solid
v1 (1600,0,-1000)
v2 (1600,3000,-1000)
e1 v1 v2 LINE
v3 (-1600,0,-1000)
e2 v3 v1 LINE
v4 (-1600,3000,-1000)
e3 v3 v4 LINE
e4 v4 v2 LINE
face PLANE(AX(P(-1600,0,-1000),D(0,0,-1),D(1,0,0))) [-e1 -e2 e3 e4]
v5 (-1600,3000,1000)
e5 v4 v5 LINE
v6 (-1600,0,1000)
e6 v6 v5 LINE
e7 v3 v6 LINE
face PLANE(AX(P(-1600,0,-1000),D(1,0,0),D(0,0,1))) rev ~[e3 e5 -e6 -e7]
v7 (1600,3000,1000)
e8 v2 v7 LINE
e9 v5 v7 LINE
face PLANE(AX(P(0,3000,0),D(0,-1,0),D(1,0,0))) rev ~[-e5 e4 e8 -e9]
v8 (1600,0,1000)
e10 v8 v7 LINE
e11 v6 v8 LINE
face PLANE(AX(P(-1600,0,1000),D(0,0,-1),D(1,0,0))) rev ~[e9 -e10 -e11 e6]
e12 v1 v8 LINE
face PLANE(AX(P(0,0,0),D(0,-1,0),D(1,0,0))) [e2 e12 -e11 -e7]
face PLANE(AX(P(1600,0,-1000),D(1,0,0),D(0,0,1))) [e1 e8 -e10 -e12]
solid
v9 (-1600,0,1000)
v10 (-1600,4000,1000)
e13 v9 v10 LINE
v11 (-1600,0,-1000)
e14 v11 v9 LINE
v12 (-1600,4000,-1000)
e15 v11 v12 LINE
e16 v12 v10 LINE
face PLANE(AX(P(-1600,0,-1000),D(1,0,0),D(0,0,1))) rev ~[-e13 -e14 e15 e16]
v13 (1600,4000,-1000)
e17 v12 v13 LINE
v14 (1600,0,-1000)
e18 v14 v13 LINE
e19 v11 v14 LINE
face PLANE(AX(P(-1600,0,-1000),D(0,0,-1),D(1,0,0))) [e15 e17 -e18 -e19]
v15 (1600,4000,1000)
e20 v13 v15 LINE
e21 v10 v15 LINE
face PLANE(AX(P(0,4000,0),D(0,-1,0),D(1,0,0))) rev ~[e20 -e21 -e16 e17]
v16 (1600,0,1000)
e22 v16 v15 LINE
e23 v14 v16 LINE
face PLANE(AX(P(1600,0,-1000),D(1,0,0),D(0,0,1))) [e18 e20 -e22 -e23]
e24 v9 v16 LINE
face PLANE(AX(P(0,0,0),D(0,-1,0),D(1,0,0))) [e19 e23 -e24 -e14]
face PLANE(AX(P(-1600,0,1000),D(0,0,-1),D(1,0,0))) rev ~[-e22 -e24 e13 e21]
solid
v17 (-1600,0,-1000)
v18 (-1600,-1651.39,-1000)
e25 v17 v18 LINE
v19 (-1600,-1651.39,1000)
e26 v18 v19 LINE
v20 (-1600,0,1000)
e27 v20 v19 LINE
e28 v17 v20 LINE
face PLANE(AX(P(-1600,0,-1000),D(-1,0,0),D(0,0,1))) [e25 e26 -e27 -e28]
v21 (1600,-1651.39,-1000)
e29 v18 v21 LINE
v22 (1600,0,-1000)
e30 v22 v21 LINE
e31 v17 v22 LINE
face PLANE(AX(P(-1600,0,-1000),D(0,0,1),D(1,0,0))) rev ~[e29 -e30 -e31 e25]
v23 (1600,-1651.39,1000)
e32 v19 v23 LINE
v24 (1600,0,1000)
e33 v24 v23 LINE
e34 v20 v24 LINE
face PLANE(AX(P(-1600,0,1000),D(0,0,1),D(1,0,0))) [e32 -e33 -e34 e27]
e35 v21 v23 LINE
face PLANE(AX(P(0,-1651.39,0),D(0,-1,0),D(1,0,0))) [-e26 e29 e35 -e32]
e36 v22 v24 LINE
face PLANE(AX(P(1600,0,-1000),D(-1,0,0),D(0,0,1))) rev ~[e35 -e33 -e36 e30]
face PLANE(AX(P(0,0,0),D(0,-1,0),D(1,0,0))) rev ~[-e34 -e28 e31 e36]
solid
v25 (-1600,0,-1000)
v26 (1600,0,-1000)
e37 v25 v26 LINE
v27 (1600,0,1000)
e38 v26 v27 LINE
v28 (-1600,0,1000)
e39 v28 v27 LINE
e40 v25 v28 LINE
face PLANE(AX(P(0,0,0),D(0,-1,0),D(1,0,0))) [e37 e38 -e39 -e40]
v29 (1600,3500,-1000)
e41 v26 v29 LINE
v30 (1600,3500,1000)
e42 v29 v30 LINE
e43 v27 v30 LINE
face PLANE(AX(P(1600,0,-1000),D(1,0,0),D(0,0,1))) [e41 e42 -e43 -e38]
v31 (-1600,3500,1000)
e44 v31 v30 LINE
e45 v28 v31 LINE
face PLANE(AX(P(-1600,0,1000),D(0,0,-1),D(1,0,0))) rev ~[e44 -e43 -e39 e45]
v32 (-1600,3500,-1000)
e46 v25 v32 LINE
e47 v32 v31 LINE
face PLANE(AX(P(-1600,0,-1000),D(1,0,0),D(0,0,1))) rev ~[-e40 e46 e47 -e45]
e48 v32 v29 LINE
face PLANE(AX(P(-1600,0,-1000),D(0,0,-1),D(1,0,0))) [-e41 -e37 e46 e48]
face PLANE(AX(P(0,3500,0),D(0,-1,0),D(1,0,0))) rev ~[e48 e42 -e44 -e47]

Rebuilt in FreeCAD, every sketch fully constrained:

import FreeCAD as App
import Part
import Sketcher
from FreeCAD import Vector


def add_polygon(sketch, points):
    """Adds a closed chain of lines whose ends are joined by coincident constraints."""
    first, n = sketch.GeometryCount, len(points)
    for a, b in zip(points, points[1:] + points[:1]):
        sketch.addGeometry(Part.LineSegment(App.Vector(*a, 0), App.Vector(*b, 0)), False)
    for i in range(n):
        sketch.addConstraint(Sketcher.Constraint("Coincident", first + i, 2, first + (i + 1) % n, 1))

doc = App.newDocument("Part")
params = doc.addObject("Spreadsheet::Sheet", "Params")
for row, (alias, value) in enumerate([
    ("sketch1_width", "3200 mm"),
    ("sketch1_height", "2000 mm"),
    ("pad1_length", "1651.39 mm"),
    ("sketch2_width", "3200 mm"),
    ("sketch2_height", "2000 mm"),
    ("pad2_length", "3000 mm"),
    ("sketch3_width", "3200 mm"),
    ("sketch3_height", "2000 mm"),
    ("pad3_length", "3500 mm"),
    ("sketch4_width", "3200 mm"),
    ("sketch4_height", "2000 mm"),
    ("pad4_length", "4000 mm"),
], start=1):
    params.set(f"A{row}", alias)
    params.set(f"B{row}", "=" + value)
    params.setAlias(f"B{row}", alias)

body = doc.addObject("PartDesign::Body", "Body")

sketch1 = body.newObject("Sketcher::SketchObject", "Sketch")
sketch1.AttachmentSupport = (doc.getObject("XZ_Plane"), [""])
sketch1.MapMode = "FlatFace"
add_polygon(sketch1, [(-1600, 1000), (-1600, -1000), (1600, -1000), (1600, 1000)])
sketch1.addConstraint(Sketcher.Constraint("Vertical", 0))
sketch1.addConstraint(Sketcher.Constraint("Horizontal", 1))
sketch1.addConstraint(Sketcher.Constraint("Vertical", 2))
sketch1.addConstraint(Sketcher.Constraint("Horizontal", 3))
sketch1.addConstraint(Sketcher.Constraint("Symmetric", 0, 2, 2, 2, -1, 1))
sketch1.addConstraint(Sketcher.Constraint("DistanceX", 1, 1, 1, 2, 3200.0))
sketch1.addConstraint(Sketcher.Constraint("DistanceY", 0, 2, 0, 1, 2000.0))
sketch1.setExpression("Constraints[9]", "Params.sketch1_width")
sketch1.setExpression("Constraints[10]", "Params.sketch1_height")
pad1 = body.newObject("PartDesign::Pad", "Pad")
pad1.Profile = sketch1
pad1.setExpression("Length", "Params.pad1_length")
body2 = doc.addObject("PartDesign::Body", "Body001")

sketch2 = body2.newObject("Sketcher::SketchObject", "Sketch001")
sketch2.AttachmentSupport = (doc.getObject("XZ_Plane001"), [""])
sketch2.MapMode = "FlatFace"
add_polygon(sketch2, [(-1600, 1000), (-1600, -1000), (1600, -1000), (1600, 1000)])
sketch2.addConstraint(Sketcher.Constraint("Vertical", 0))
sketch2.addConstraint(Sketcher.Constraint("Horizontal", 1))
sketch2.addConstraint(Sketcher.Constraint("Vertical", 2))
sketch2.addConstraint(Sketcher.Constraint("Horizontal", 3))
sketch2.addConstraint(Sketcher.Constraint("Symmetric", 0, 2, 2, 2, -1, 1))
sketch2.addConstraint(Sketcher.Constraint("DistanceX", 1, 1, 1, 2, 3200.0))
sketch2.addConstraint(Sketcher.Constraint("DistanceY", 0, 2, 0, 1, 2000.0))
sketch2.setExpression("Constraints[9]", "Params.sketch2_width")
sketch2.setExpression("Constraints[10]", "Params.sketch2_height")
pad2 = body2.newObject("PartDesign::Pad", "Pad001")
pad2.Profile = sketch2
pad2.setExpression("Length", "Params.pad2_length")
pad2.Reversed = True
body3 = doc.addObject("PartDesign::Body", "Body002")

sketch3 = body3.newObject("Sketcher::SketchObject", "Sketch002")
sketch3.AttachmentSupport = (doc.getObject("XZ_Plane002"), [""])
sketch3.MapMode = "FlatFace"
add_polygon(sketch3, [(-1600, 1000), (-1600, -1000), (1600, -1000), (1600, 1000)])
sketch3.addConstraint(Sketcher.Constraint("Vertical", 0))
sketch3.addConstraint(Sketcher.Constraint("Horizontal", 1))
sketch3.addConstraint(Sketcher.Constraint("Vertical", 2))
sketch3.addConstraint(Sketcher.Constraint("Horizontal", 3))
sketch3.addConstraint(Sketcher.Constraint("Symmetric", 0, 2, 2, 2, -1, 1))
sketch3.addConstraint(Sketcher.Constraint("DistanceX", 1, 1, 1, 2, 3200.0))
sketch3.addConstraint(Sketcher.Constraint("DistanceY", 0, 2, 0, 1, 2000.0))
sketch3.setExpression("Constraints[9]", "Params.sketch3_width")
sketch3.setExpression("Constraints[10]", "Params.sketch3_height")
pad3 = body3.newObject("PartDesign::Pad", "Pad002")
pad3.Profile = sketch3
pad3.setExpression("Length", "Params.pad3_length")
pad3.Reversed = True
body4 = doc.addObject("PartDesign::Body", "Body003")

sketch4 = body4.newObject("Sketcher::SketchObject", "Sketch003")
sketch4.AttachmentSupport = (doc.getObject("XZ_Plane003"), [""])
sketch4.MapMode = "FlatFace"
add_polygon(sketch4, [(-1600, 1000), (-1600, -1000), (1600, -1000), (1600, 1000)])
sketch4.addConstraint(Sketcher.Constraint("Vertical", 0))
sketch4.addConstraint(Sketcher.Constraint("Horizontal", 1))
sketch4.addConstraint(Sketcher.Constraint("Vertical", 2))
sketch4.addConstraint(Sketcher.Constraint("Horizontal", 3))
sketch4.addConstraint(Sketcher.Constraint("Symmetric", 0, 2, 2, 2, -1, 1))
sketch4.addConstraint(Sketcher.Constraint("DistanceX", 1, 1, 1, 2, 3200.0))
sketch4.addConstraint(Sketcher.Constraint("DistanceY", 0, 2, 0, 1, 2000.0))
sketch4.setExpression("Constraints[9]", "Params.sketch4_width")
sketch4.setExpression("Constraints[10]", "Params.sketch4_height")
pad4 = body4.newObject("PartDesign::Pad", "Pad003")
pad4.Profile = sketch4
pad4.setExpression("Length", "Params.pad4_length")
pad4.Reversed = True

doc.recompute()
